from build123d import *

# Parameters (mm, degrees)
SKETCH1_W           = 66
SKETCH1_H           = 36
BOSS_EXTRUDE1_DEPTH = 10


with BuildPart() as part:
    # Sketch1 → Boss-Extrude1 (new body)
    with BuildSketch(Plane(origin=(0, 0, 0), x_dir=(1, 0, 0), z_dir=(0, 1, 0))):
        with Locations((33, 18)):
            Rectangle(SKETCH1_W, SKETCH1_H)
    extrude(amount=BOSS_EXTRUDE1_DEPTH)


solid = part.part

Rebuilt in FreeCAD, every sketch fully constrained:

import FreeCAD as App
import Part
import Sketcher


def add_polygon(sketch, points):
    """Adds a closed chain of lines whose ends are joined by coincident constraints."""
    first, n = sketch.GeometryCount, len(points)
    for a, b in zip(points, points[1:] + points[:1]):
        sketch.addGeometry(Part.LineSegment(App.Vector(*a, 0), App.Vector(*b, 0)), False)
    for i in range(n):
        sketch.addConstraint(Sketcher.Constraint("Coincident", first + i, 2, first + (i + 1) % n, 1))

doc = App.newDocument("Part")
params = doc.addObject("Spreadsheet::Sheet", "Params")
for row, (alias, value) in enumerate([
    ("sketch1_width", "66 mm"),
    ("sketch1_height", "36 mm"),
    ("pad1_length", "10 mm"),
], start=1):
    params.set(f"A{row}", alias)
    params.set(f"B{row}", "=" + value)
    params.setAlias(f"B{row}", alias)

body = doc.addObject("PartDesign::Body", "Body")

sketch1 = body.newObject("Sketcher::SketchObject", "Sketch")
sketch1.AttachmentSupport = (doc.getObject("XZ_Plane"), [""])
sketch1.MapMode = "FlatFace"
add_polygon(sketch1, [(0, -36), (0, 0), (66, 0), (66, -36)])
sketch1.addConstraint([
    Sketcher.Constraint("Vertical", 0),
    Sketcher.Constraint("Horizontal", 1),
    Sketcher.Constraint("Vertical", 2),
    Sketcher.Constraint("Horizontal", 3),
    Sketcher.Constraint("Coincident", 0, 2, -1, 1),
    Sketcher.Constraint("DistanceX", 1, 1, 1, 2, 66.0),
    Sketcher.Constraint("DistanceY", 0, 1, 0, 2, 36.0),
])
sketch1.setExpression("Constraints[9]", "Params.sketch1_width")
sketch1.setExpression("Constraints[10]", "Params.sketch1_height")
pad1 = body.newObject("PartDesign::Pad", "Pad")
pad1.Profile = sketch1
pad1.setExpression("Length", "Params.pad1_length")
pad1.Reversed = True

doc.recompute()
